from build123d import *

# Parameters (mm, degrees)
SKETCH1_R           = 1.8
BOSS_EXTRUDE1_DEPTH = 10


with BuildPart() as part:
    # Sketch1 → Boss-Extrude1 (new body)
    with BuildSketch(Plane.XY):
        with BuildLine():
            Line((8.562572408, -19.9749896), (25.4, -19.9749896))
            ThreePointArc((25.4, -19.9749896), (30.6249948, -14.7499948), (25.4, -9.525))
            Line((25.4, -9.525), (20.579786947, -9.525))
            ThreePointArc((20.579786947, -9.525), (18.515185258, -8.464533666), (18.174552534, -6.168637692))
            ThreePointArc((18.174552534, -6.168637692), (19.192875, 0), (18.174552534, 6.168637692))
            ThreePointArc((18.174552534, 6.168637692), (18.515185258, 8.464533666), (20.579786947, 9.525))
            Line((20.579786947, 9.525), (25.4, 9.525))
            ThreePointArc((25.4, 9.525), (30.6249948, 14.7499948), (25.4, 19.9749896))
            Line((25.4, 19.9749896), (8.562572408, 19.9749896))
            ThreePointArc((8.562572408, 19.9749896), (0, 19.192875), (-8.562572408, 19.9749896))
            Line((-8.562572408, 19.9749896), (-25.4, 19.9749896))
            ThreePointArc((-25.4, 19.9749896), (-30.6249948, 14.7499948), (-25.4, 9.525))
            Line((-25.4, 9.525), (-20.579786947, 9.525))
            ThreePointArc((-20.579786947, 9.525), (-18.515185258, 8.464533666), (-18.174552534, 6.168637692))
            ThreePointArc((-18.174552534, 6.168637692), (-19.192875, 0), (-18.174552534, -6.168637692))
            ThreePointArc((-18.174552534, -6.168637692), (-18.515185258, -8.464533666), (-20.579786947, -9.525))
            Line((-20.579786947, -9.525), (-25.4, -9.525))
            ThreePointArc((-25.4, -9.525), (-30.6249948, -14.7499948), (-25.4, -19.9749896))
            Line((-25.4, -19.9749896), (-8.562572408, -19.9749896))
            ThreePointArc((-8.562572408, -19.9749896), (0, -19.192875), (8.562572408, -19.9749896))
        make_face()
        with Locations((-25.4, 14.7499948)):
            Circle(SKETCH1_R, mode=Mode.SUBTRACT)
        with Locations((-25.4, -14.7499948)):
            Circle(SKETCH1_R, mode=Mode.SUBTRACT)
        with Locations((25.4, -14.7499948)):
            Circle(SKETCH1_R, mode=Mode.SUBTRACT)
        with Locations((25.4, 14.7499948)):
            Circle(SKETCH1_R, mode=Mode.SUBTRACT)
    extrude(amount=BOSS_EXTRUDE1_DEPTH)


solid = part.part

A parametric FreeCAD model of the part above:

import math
import FreeCAD as App
import Part
import Sketcher
from FreeCAD import Vector

doc = App.newDocument("Part")
body = doc.addObject("PartDesign::Body", "Body")

sketch1 = body.newObject("Sketcher::SketchObject", "Sketch")
sketch1.AttachmentSupport = (doc.getObject("XY_Plane"), [""])
sketch1.MapMode = "FlatFace"
sketch1.addGeometry([
    Part.LineSegment(Vector(8.6, -20, 0), Vector(25.4, -20, 0)),
    Part.ArcOfCircle(Part.Circle(Vector(25.4, -14.7, 0), Vector(0, 0, 1), 5.2), math.radians(-90), math.radians(90)),
    Part.LineSegment(Vector(25.4, -9.5, 0), Vector(20.6, -9.5, 0)),
    Part.ArcOfCircle(Part.Circle(Vector(20.6, -7, 0), Vector(0, 0, 1), 2.5), math.radians(161), math.radians(270)),
    Part.ArcOfCircle(Part.Circle(Vector(0, 0, 0), Vector(0, 0, 1), 19.2), math.radians(-19), math.radians(19)),
    Part.ArcOfCircle(Part.Circle(Vector(20.6, 7, 0), Vector(0, 0, 1), 2.5), math.radians(90), math.radians(199)),
    Part.LineSegment(Vector(20.6, 9.5, 0), Vector(25.4, 9.5, 0)),
    Part.ArcOfCircle(Part.Circle(Vector(25.4, 14.7, 0), Vector(0, 0, 1), 5.2), math.radians(-90), math.radians(90)),
    Part.LineSegment(Vector(25.4, 20, 0), Vector(8.6, 20, 0)),
    Part.ArcOfCircle(Part.Circle(Vector(0, 66.5, 0), Vector(0, 0, 1), 47.3), math.radians(-100), math.radians(-80)),
    Part.LineSegment(Vector(-8.6, 20, 0), Vector(-25.4, 20, 0)),
    Part.ArcOfCircle(Part.Circle(Vector(-25.4, 14.7, 0), Vector(0, 0, 1), 5.2), math.radians(90), math.radians(270)),
    Part.LineSegment(Vector(-25.4, 9.5, 0), Vector(-20.6, 9.5, 0)),
    Part.ArcOfCircle(Part.Circle(Vector(-20.6, 7, 0), Vector(0, 0, 1), 2.5), math.radians(-19), math.radians(90)),
    Part.ArcOfCircle(Part.Circle(Vector(0, 0, 0), Vector(0, 0, 1), 19.2), math.radians(161), math.radians(199)),
    Part.ArcOfCircle(Part.Circle(Vector(-20.6, -7, 0), Vector(0, 0, 1), 2.5), math.radians(-90), math.radians(19)),
    Part.LineSegment(Vector(-20.6, -9.5, 0), Vector(-25.4, -9.5, 0)),
    Part.ArcOfCircle(Part.Circle(Vector(-25.4, -14.7, 0), Vector(0, 0, 1), 5.2), math.radians(90), math.radians(270)),
    Part.LineSegment(Vector(-25.4, -20, 0), Vector(-8.6, -20, 0)),
    Part.ArcOfCircle(Part.Circle(Vector(0, -66.5, 0), Vector(0, 0, 1), 47.3), math.radians(80), math.radians(100)),
    Part.Circle(Vector(-25.4, -14.7, 0), Vector(0, 0, 1), 1.8),
    Part.Circle(Vector(25.4, -14.7, 0), Vector(0, 0, 1), 1.8),
    Part.Circle(Vector(-25.4, 14.7, 0), Vector(0, 0, 1), 1.8),
    Part.Circle(Vector(25.4, 14.7, 0), Vector(0, 0, 1), 1.8),
], False)
sketch1.addConstraint([
    Sketcher.Constraint("Tangent", 0, 2, 1, 1),
    Sketcher.Constraint("Tangent", 1, 2, 2, 1),
    Sketcher.Constraint("Tangent", 2, 2, 3, 2),
    Sketcher.Constraint("Tangent", 3, 1, 4, 1),
    Sketcher.Constraint("Tangent", 4, 2, 5, 2),
    Sketcher.Constraint("Tangent", 5, 1, 6, 1),
    Sketcher.Constraint("Tangent", 6, 2, 7, 1),
    Sketcher.Constraint("Tangent", 7, 2, 8, 1),
    Sketcher.Constraint("Coincident", 8, 2, 9, 2),
    Sketcher.Constraint("Coincident", 9, 1, 10, 1),
    Sketcher.Constraint("Tangent", 10, 2, 11, 1),
    Sketcher.Constraint("Tangent", 11, 2, 12, 1),
    Sketcher.Constraint("Tangent", 12, 2, 13, 2),
    Sketcher.Constraint("Tangent", 13, 1, 14, 1),
    Sketcher.Constraint("Tangent", 14, 2, 15, 2),
    Sketcher.Constraint("Tangent", 15, 1, 16, 1),
    Sketcher.Constraint("Tangent", 16, 2, 17, 1),
    Sketcher.Constraint("Tangent", 17, 2, 18, 1),
    Sketcher.Constraint("Coincident", 18, 2, 19, 2),
    Sketcher.Constraint("Coincident", 19, 1, 0, 1),
    Sketcher.Constraint("Horizontal", 0),
    Sketcher.Constraint("Horizontal", 2),
    Sketcher.Constraint("Horizontal", 6),
    Sketcher.Constraint("Horizontal", 8),
    Sketcher.Constraint("Horizontal", 10),
    Sketcher.Constraint("Horizontal", 12),
    Sketcher.Constraint("Horizontal", 16),
    Sketcher.Constraint("Horizontal", 18),
    Sketcher.Constraint("Coincident", 4, 3, -1, 1),
    Sketcher.Constraint("Coincident", 14, 3, -1, 1),
    Sketcher.Constraint("Coincident", 20, 3, 17, 3),
    Sketcher.Constraint("Coincident", 21, 3, 1, 3),
    Sketcher.Constraint("Coincident", 22, 3, 11, 3),
    Sketcher.Constraint("Coincident", 23, 3, 7, 3),
    Sketcher.Constraint("Equal", 3, 5),
    Sketcher.Constraint("Equal", 1, 7),
    Sketcher.Constraint("Equal", 7, 11),
    Sketcher.Constraint("Equal", 5, 13),
    Sketcher.Constraint("Equal", 4, 14),
    Sketcher.Constraint("Equal", 13, 15),
    Sketcher.Constraint("Equal", 11, 17),
    Sketcher.Constraint("Equal", 9, 19),
    Sketcher.Constraint("Equal", 20, 21),
    Sketcher.Constraint("Equal", 21, 22),
    Sketcher.Constraint("Equal", 22, 23),
    Sketcher.Constraint("Symmetric", 1, 3, 11, 3, -1, 1),
    Sketcher.Constraint("Symmetric", 7, 3, 17, 3, -1, 1),
    Sketcher.Constraint("Symmetric", 9, 3, 19, 3, -1, 1),
    Sketcher.Constraint("Symmetric", 7, 3, 11, 3, -2),
    Sketcher.Constraint("PointOnObject", 9, 3, -2),
    Sketcher.Constraint("Diameter", 20, 3.6),
    Sketcher.Constraint("Radius", 3, 2.54),
    Sketcher.Constraint("DistanceX", -1, 1, 1, 3, 25.4),
    Sketcher.Constraint("Radius", 9, 47.262479),
    Sketcher.Constraint("DistanceY", 3, 3, 5, 3, 13.97),
    Sketcher.Constraint("Radius", 1, 5.224995),
    Sketcher.Constraint("Radius", 4, 19.192875),
    Sketcher.Constraint("DistanceX", 0, 1, 0, 2, 16.837428),
])
pad1 = body.newObject("PartDesign::Pad", "Pad")
pad1.Profile = sketch1
pad1.Length = 10

doc.recompute()
